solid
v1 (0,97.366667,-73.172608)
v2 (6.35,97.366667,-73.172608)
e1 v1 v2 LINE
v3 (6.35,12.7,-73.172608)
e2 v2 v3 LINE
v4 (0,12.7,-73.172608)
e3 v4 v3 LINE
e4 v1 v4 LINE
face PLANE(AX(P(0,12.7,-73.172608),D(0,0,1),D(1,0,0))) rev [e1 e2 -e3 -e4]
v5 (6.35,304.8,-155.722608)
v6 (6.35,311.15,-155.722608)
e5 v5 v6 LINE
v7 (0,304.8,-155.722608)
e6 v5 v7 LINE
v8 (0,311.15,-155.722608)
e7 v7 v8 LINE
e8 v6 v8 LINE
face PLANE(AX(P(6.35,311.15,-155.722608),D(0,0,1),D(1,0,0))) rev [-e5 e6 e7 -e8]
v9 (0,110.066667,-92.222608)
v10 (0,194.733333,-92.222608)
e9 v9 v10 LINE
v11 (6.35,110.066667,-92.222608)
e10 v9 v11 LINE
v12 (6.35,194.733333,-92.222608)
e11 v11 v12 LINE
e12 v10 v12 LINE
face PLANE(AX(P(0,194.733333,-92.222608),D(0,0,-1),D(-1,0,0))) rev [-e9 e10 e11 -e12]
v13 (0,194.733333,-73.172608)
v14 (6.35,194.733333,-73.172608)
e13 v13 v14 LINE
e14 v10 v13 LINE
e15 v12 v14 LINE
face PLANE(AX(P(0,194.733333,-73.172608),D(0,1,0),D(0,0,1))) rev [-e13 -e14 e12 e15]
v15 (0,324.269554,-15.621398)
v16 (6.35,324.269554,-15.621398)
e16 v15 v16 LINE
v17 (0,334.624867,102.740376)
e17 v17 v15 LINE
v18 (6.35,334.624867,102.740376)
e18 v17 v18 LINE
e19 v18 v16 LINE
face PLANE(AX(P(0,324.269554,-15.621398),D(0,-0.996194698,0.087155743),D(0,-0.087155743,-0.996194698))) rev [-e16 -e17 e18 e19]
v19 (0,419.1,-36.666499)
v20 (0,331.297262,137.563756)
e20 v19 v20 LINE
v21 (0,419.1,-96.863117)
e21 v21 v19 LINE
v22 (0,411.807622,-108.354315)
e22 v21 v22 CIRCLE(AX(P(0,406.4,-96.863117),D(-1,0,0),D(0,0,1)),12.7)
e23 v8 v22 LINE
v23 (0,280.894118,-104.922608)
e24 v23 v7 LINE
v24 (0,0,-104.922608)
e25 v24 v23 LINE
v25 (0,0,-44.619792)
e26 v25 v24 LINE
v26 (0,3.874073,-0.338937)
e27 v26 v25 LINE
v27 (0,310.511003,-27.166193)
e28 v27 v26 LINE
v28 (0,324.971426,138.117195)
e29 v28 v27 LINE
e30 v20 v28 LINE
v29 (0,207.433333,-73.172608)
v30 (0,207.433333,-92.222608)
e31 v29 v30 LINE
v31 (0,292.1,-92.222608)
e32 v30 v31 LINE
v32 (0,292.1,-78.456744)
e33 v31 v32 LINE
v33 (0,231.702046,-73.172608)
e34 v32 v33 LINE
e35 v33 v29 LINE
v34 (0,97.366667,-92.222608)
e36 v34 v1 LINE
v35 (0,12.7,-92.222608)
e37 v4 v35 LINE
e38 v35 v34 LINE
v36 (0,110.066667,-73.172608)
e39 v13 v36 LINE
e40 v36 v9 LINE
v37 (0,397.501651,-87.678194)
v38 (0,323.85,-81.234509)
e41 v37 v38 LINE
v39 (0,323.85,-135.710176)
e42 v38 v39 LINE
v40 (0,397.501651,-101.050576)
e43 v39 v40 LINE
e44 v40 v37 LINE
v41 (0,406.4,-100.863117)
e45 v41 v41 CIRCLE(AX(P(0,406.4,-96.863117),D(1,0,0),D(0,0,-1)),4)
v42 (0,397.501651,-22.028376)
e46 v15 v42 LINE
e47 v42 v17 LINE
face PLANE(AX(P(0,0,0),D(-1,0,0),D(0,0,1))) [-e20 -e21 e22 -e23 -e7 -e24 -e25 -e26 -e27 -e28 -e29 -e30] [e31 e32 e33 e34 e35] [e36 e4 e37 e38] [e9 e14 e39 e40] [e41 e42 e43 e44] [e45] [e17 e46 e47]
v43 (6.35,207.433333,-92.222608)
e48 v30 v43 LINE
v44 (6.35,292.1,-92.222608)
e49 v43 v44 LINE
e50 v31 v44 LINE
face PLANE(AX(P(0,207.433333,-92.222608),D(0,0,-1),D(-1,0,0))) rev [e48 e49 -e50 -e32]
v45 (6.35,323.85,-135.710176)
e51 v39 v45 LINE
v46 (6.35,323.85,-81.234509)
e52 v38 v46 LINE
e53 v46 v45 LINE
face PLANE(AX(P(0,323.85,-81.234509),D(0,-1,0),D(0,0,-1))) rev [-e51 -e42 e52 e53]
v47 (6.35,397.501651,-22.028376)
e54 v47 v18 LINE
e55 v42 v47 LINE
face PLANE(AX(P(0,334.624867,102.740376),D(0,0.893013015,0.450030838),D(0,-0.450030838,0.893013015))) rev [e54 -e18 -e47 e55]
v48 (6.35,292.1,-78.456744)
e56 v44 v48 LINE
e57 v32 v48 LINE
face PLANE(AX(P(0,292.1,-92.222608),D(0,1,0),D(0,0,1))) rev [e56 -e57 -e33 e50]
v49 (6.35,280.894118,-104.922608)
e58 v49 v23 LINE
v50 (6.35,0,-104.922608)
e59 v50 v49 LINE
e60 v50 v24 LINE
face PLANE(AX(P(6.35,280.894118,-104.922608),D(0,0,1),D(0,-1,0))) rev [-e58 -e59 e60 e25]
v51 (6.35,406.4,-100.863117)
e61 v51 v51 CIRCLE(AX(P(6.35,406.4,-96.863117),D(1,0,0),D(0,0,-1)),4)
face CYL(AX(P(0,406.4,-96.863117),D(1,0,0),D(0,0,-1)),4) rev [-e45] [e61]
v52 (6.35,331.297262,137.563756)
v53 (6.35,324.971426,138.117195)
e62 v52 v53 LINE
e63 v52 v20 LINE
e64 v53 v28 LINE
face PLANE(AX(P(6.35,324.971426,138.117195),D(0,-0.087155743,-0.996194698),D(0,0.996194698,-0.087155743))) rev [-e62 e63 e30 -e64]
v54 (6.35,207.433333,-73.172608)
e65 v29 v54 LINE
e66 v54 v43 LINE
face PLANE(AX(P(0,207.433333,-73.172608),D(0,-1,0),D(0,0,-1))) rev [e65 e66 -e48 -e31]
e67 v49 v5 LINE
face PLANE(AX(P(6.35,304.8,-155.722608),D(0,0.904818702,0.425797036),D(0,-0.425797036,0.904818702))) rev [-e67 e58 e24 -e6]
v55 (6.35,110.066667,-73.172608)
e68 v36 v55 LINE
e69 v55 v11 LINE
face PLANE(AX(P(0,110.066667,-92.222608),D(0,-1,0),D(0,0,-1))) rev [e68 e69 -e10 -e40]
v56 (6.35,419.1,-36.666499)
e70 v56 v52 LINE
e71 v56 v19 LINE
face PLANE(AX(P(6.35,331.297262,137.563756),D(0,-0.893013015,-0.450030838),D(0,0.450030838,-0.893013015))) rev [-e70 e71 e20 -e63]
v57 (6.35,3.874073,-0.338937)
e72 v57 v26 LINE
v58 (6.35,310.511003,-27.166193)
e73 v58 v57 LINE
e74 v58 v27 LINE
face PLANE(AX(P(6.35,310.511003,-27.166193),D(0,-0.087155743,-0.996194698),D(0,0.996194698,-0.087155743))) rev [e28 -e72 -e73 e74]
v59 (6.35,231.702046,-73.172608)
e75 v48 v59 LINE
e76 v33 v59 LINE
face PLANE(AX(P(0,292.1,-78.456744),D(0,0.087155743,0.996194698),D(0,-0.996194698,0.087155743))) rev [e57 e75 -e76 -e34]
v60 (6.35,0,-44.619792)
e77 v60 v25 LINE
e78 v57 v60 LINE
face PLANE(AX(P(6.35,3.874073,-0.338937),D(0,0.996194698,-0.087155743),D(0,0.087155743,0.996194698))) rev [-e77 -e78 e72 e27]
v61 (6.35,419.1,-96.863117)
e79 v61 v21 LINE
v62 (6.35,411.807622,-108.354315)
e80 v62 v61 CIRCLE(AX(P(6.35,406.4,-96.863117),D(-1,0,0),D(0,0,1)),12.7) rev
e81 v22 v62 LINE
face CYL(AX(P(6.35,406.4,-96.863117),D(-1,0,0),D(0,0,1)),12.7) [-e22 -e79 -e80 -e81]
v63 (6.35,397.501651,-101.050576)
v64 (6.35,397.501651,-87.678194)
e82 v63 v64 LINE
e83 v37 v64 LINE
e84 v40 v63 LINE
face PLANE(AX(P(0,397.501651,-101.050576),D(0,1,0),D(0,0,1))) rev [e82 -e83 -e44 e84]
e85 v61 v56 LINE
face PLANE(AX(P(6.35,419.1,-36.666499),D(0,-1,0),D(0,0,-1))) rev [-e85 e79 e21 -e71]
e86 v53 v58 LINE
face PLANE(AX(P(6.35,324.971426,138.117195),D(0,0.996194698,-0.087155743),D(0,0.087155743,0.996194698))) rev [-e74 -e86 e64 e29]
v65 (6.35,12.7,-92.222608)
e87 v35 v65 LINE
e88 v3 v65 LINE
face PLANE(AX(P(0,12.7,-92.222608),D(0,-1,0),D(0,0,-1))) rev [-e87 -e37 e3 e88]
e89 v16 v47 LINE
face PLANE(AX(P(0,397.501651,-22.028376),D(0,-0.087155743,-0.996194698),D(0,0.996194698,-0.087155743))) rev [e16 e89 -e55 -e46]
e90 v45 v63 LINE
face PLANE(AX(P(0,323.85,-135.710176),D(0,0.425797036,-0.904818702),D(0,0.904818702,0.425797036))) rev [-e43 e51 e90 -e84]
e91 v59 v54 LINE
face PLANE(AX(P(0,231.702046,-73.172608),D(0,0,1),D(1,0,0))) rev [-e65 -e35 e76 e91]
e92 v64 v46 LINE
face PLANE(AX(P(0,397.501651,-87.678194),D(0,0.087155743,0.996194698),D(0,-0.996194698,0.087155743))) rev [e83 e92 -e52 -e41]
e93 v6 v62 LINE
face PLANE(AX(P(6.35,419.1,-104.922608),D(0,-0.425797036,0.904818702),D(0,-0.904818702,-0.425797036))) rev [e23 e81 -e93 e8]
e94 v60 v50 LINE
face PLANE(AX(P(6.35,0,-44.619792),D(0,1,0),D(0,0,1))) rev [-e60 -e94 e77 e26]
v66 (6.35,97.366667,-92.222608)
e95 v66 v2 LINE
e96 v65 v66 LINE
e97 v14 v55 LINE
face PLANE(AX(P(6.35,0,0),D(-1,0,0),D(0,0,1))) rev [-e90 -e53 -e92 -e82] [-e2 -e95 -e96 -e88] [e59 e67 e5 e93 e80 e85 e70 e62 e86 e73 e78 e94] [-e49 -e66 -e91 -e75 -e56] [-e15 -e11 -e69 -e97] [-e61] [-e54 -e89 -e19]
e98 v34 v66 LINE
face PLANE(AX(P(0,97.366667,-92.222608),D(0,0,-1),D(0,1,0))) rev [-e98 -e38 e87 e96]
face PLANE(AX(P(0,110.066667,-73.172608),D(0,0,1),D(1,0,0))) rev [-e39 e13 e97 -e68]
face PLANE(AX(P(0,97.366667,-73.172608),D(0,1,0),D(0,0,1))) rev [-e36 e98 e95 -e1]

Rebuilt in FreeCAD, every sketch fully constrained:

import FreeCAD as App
import Part
import Sketcher
Q = App.Units.Quantity


def edges_at(feature, points):
    """Names of the edges that pass closest to the given points."""
    edges = feature.Shape.Edges
    near = lambda p: min(range(len(edges)), key=lambda i: edges[i].distToShape(Part.Vertex(*p))[0])
    return sorted({f"Edge{near(p) + 1}" for p in points})


def add_polygon(sketch, points):
    """Adds a closed chain of lines whose ends are joined by coincident constraints."""
    first, n = sketch.GeometryCount, len(points)
    for a, b in zip(points, points[1:] + points[:1]):
        sketch.addGeometry(Part.LineSegment(App.Vector(*a, 0), App.Vector(*b, 0)), False)
    for i in range(n):
        sketch.addConstraint(Sketcher.Constraint("Coincident", first + i, 2, first + (i + 1) % n, 1))

doc = App.newDocument("Part")
body = doc.addObject("PartDesign::Body", "Body")

sketch1 = doc.addObject("Sketcher::SketchObject", "Sketch")
body.addObject(sketch1)
sketch1.AttachmentSupport = (doc.YZ_Plane, [""])
sketch1.MapMode = "FlatFace"
add_polygon(sketch1, [(325, 138), (311, -27), (4, 0), (0, -45), (0, -105), (281, -105), (305, -156), (311, -156), (419, -105), (419, -37), (331, 138)])
sketch1.addConstraint(Sketcher.Constraint("Vertical", 3))
sketch1.addConstraint(Sketcher.Constraint("Horizontal", 4))
sketch1.addConstraint(Sketcher.Constraint("Horizontal", 6))
sketch1.addConstraint(Sketcher.Constraint("Vertical", 8))
sketch1.addConstraint(Sketcher.Constraint("PointOnObject", 2, 2, -2))
sketch1.addConstraint(Sketcher.Constraint("Perpendicular", 0, 1))
sketch1.addConstraint(Sketcher.Constraint("Perpendicular", 1, 2))
sketch1.addConstraint(Sketcher.Constraint("Perpendicular", 5, 7))
sketch1.addConstraint(Sketcher.Constraint("Perpendicular", 2, 10))
sketch1.addConstraint(Sketcher.Constraint("Horizontal", 4, 2, 7, 2))
sketch1.addConstraint(Sketcher.Constraint("DistanceX", -1, 1, 5, 2, Q("12 in")))
sketch1.addConstraint(Sketcher.Constraint("Angle", 0, Q("-95 deg")))
sketch1.addConstraint(Sketcher.Constraint("DistanceY", 5, 2, 4, 2, Q("2 in")))
sketch1.addConstraint(Sketcher.Constraint("DistanceX", 6, 1, 6, 2, Q("0.25 in")))
sketch1.addConstraint(Sketcher.Constraint("DistanceX", -1, 1, 7, 2, Q("16.5 in")))
sketch1.addConstraint(Sketcher.Constraint("Distance", 2, Q("1.75 in")))
sketch1.addConstraint(Sketcher.Constraint("Distance", 10, Q("0.25 in")))
sketch1.addConstraint(Sketcher.Constraint("DistanceY", 8, 1, 8, 2, Q("68.256109 mm")))
sketch1.addConstraint(Sketcher.Constraint("DistanceY", 8, 2, -1, 1, Q("36.666499 mm")))
sketch1.addConstraint(Sketcher.Constraint("DistanceY", 2, 2, 0, 2, Q("17.453599 mm")))
sketch1.addConstraint(Sketcher.Constraint("DistanceY", 3, 2, 3, 1, Q("60.302816 mm")))
sketch1.addConstraint(Sketcher.Constraint("DistanceX", 0, 2, 9, 2, Q("20.786259 mm")))
pad1 = doc.addObject("PartDesign::Pad", "Pad")
body.addObject(pad1)
pad1.Profile = sketch1
pad1.Length = Q("0.25 in")

sketch2 = doc.addObject("Sketcher::SketchObject", "Sketch001")
body.addObject(sketch2)
sketch2.AttachmentSupport = (doc.YZ_Plane, [""])
sketch2.MapMode = "FlatFace"
sketch2.AttachmentOffset = App.Placement(App.Vector(0, 0, 0.25 * 25.4), App.Rotation())
add_polygon(sketch2, [(398, -22), (335, 103), (324, -16)])
add_polygon(sketch2, [(398, -88), (324, -81), (324, -136), (398, -101)])
add_polygon(sketch2, [(292, -78), (232, -73), (207, -73), (207, -92), (292, -92)])
add_polygon(sketch2, [(195, -73), (110, -73), (110, -92), (195, -92)])
add_polygon(sketch2, [(97, -73), (13, -73), (13, -92), (97, -92)])
sketch2.addConstraint(Sketcher.Constraint("Vertical", 4))
sketch2.addConstraint(Sketcher.Constraint("Vertical", 6))
sketch2.addConstraint(Sketcher.Constraint("Horizontal", 8))
sketch2.addConstraint(Sketcher.Constraint("Vertical", 9))
sketch2.addConstraint(Sketcher.Constraint("Horizontal", 10))
sketch2.addConstraint(Sketcher.Constraint("Vertical", 11))
sketch2.addConstraint(Sketcher.Constraint("Horizontal", 12))
sketch2.addConstraint(Sketcher.Constraint("Vertical", 13))
sketch2.addConstraint(Sketcher.Constraint("Horizontal", 14))
sketch2.addConstraint(Sketcher.Constraint("Vertical", 15))
sketch2.addConstraint(Sketcher.Constraint("Horizontal", 16))
sketch2.addConstraint(Sketcher.Constraint("Vertical", 17))
sketch2.addConstraint(Sketcher.Constraint("Horizontal", 18))
sketch2.addConstraint(Sketcher.Constraint("Vertical", 19))
sketch2.addConstraint(Sketcher.Constraint("Perpendicular", 1, 2))
sketch2.addConstraint(Sketcher.Constraint("Parallel", 2, 3))
sketch2.addConstraint(Sketcher.Constraint("Parallel", 3, 7))
sketch2.addConstraint(Sketcher.Constraint("Horizontal", 8, 2, 12, 2))
sketch2.addConstraint(Sketcher.Constraint("Horizontal", 10, 2, 13, 2))
sketch2.addConstraint(Sketcher.Constraint("Horizontal", 15, 2, 16, 2))
sketch2.addConstraint(Sketcher.Constraint("Horizontal", 14, 2, 17, 2))
sketch2.addConstraint(Sketcher.Constraint("Vertical", 2, 2, 5, 2))
sketch2.addConstraint(Sketcher.Constraint("Equal", 10, 12))
sketch2.addConstraint(Sketcher.Constraint("Equal", 14, 16))
sketch2.addConstraint(Sketcher.Constraint("Angle", 1, Q("-95 deg")))
sketch2.addConstraint(Sketcher.Constraint("DistanceY", 9, 2, 9, 1, Q("0.75 in")))
sketch2.addConstraint(Sketcher.Constraint("DistanceX", -1, 1, 10, 2, Q("11.5 in")))
sketch2.addConstraint(Sketcher.Constraint("DistanceX", -1, 1, 16, 2, Q("0.5 in")))
sketch2.addConstraint(Sketcher.Constraint("DistanceX", 14, 2, 9, 2, Q("0.5 in")))
sketch2.addConstraint(Sketcher.Constraint("DistanceX", 18, 2, 13, 2, Q("0.5 in")))
sketch2.addConstraint(Sketcher.Constraint("DistanceX", -1, 1, 3, 2, Q("12.75 in")))
sketch2.addConstraint(Sketcher.Constraint("DistanceY", 6, 1, 6, 2, Q("13.372382 mm")))
sketch2.addConstraint(Sketcher.Constraint("DistanceY", 4, 2, 2, 2, Q("113.6818 mm")))
sketch2.addConstraint(Sketcher.Constraint("DistanceY", 5, 2, 2, 2, Q("79.022199 mm")))
sketch2.addConstraint(Sketcher.Constraint("DistanceY", 3, 2, 7, 2, Q("8.061901 mm")))
sketch2.addConstraint(Sketcher.Constraint("Distance", 0, Q("139.716612 mm")))
sketch2.addConstraint(Sketcher.Constraint("Distance", 2, Q("73.511832 mm")))
sketch2.addConstraint(Sketcher.Constraint("Distance", 3, Q("73.932989 mm")))
sketch2.addConstraint(Sketcher.Constraint("DistanceX", 8, 2, 8, 1, Q("24.268712 mm")))
sketch2.addConstraint(Sketcher.Constraint("DistanceY", 3, 2, -1, 1, Q("81.234509 mm")))
pocket1 = doc.addObject("PartDesign::Pocket", "Pocket")
body.addObject(pocket1)
pocket1.Profile = sketch2
pocket1.Type = "ThroughAll"
doc.recompute()

fillet = doc.addObject("PartDesign::Fillet", "Fillet")
body.addObject(fillet)
fillet.Base = (pocket1, edges_at(pocket1, [(3.175, 419.1, -104.923)]))
fillet.Radius = Q("0.5 in")

sketch3 = doc.addObject("Sketcher::SketchObject", "Sketch002")
body.addObject(sketch3)
sketch3.AttachmentSupport = (doc.YZ_Plane, [""])
sketch3.MapMode = "FlatFace"
sketch3.AttachmentOffset = App.Placement(App.Vector(0, 0, 0.25 * 25.4), App.Rotation())
sketch3.addGeometry(Part.Circle(App.Vector(406.4, -96.9, 0), App.Vector(0, 0, 1), 4), False)
sketch3.addConstraint(Sketcher.Constraint("DistanceX", -1, 1, 0, 3, Q("16 in")))
sketch3.addConstraint(Sketcher.Constraint("Diameter", 0, Q("8 mm")))
sketch3.addConstraint(Sketcher.Constraint("DistanceY", 0, 3, -1, 1, Q("96.863117 mm")))
pocket2 = doc.addObject("PartDesign::Pocket", "Pocket001")
body.addObject(pocket2)
pocket2.Profile = sketch3
pocket2.Type = "ThroughAll"

doc.recompute()
